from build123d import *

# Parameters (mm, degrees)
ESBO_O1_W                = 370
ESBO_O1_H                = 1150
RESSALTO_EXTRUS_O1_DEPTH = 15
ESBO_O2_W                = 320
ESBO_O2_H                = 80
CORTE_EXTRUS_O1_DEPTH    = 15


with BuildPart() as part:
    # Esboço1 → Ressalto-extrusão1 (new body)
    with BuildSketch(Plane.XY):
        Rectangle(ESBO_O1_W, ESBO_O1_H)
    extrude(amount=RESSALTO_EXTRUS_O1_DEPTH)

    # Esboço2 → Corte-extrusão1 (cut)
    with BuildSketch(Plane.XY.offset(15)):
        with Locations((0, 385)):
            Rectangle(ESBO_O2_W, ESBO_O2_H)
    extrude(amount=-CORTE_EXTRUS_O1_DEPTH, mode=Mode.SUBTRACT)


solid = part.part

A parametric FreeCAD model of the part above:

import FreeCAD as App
import Part
import Sketcher

V = App.Vector


def add_polygon(sketch, points):
    """Adds a closed chain of lines whose ends are joined by coincident constraints."""
    first, n = sketch.GeometryCount, len(points)
    for a, b in zip(points, points[1:] + points[:1]):
        sketch.addGeometry(Part.LineSegment(App.Vector(*a, 0), App.Vector(*b, 0)), False)
    for i in range(n):
        sketch.addConstraint(Sketcher.Constraint("Coincident", first + i, 2, first + (i + 1) % n, 1))

doc = App.newDocument("Part")
body = doc.addObject("PartDesign::Body", "Body")

# Sketch on XY plane
sketch1 = doc.addObject("Sketcher::SketchObject", "Sketch")
body.addObject(sketch1)
sketch1.AttachmentSupport = (doc.XY_Plane, [""])
sketch1.MapMode = "FlatFace"
add_polygon(sketch1, [(-185, 575), (-185, -575), (185, -575), (185, 575)])  # lines 0-3
sketch1.addConstraint([
    Sketcher.Constraint("Vertical", 0),
    Sketcher.Constraint("Horizontal", 1),
    Sketcher.Constraint("Vertical", 2),
    Sketcher.Constraint("Horizontal", 3),
    Sketcher.Constraint("Symmetric", 0, 2, 2, 2, -1, 1),
    Sketcher.Constraint("DistanceX", 1, 1, 1, 2, 370.0),
    Sketcher.Constraint("DistanceY", 0, 2, 0, 1, 1150.0),
])
pad1 = doc.addObject("PartDesign::Pad", "Pad")
body.addObject(pad1)
pad1.Profile = sketch1
pad1.Length = 15

# Sketch on XY plane
sketch2 = doc.addObject("Sketcher::SketchObject", "Sketch001")
body.addObject(sketch2)
sketch2.AttachmentSupport = (doc.XY_Plane, [""])
sketch2.MapMode = "FlatFace"
sketch2.AttachmentOffset = App.Placement(V(0, 0, 15), App.Rotation())
add_polygon(sketch2, [(-160, 425), (-160, 345), (160, 345), (160, 425)])  # lines 0-3
sketch2.addConstraint([
    Sketcher.Constraint("Vertical", 0),
    Sketcher.Constraint("Horizontal", 1),
    Sketcher.Constraint("Vertical", 2),
    Sketcher.Constraint("Horizontal", 3),
    Sketcher.Constraint("DistanceX", 1, 1, 1, 2, 320.0),
    Sketcher.Constraint("DistanceY", 0, 2, 0, 1, 80.0),
    Sketcher.Constraint("DistanceX", 0, 2, -1, 1, 160.0),
    Sketcher.Constraint("DistanceY", -1, 1, 0, 2, 345.0),
])
pocket1 = doc.addObject("PartDesign::Pocket", "Pocket")
body.addObject(pocket1)
pocket1.Profile = sketch2
pocket1.Length = 15

doc.recompute()
